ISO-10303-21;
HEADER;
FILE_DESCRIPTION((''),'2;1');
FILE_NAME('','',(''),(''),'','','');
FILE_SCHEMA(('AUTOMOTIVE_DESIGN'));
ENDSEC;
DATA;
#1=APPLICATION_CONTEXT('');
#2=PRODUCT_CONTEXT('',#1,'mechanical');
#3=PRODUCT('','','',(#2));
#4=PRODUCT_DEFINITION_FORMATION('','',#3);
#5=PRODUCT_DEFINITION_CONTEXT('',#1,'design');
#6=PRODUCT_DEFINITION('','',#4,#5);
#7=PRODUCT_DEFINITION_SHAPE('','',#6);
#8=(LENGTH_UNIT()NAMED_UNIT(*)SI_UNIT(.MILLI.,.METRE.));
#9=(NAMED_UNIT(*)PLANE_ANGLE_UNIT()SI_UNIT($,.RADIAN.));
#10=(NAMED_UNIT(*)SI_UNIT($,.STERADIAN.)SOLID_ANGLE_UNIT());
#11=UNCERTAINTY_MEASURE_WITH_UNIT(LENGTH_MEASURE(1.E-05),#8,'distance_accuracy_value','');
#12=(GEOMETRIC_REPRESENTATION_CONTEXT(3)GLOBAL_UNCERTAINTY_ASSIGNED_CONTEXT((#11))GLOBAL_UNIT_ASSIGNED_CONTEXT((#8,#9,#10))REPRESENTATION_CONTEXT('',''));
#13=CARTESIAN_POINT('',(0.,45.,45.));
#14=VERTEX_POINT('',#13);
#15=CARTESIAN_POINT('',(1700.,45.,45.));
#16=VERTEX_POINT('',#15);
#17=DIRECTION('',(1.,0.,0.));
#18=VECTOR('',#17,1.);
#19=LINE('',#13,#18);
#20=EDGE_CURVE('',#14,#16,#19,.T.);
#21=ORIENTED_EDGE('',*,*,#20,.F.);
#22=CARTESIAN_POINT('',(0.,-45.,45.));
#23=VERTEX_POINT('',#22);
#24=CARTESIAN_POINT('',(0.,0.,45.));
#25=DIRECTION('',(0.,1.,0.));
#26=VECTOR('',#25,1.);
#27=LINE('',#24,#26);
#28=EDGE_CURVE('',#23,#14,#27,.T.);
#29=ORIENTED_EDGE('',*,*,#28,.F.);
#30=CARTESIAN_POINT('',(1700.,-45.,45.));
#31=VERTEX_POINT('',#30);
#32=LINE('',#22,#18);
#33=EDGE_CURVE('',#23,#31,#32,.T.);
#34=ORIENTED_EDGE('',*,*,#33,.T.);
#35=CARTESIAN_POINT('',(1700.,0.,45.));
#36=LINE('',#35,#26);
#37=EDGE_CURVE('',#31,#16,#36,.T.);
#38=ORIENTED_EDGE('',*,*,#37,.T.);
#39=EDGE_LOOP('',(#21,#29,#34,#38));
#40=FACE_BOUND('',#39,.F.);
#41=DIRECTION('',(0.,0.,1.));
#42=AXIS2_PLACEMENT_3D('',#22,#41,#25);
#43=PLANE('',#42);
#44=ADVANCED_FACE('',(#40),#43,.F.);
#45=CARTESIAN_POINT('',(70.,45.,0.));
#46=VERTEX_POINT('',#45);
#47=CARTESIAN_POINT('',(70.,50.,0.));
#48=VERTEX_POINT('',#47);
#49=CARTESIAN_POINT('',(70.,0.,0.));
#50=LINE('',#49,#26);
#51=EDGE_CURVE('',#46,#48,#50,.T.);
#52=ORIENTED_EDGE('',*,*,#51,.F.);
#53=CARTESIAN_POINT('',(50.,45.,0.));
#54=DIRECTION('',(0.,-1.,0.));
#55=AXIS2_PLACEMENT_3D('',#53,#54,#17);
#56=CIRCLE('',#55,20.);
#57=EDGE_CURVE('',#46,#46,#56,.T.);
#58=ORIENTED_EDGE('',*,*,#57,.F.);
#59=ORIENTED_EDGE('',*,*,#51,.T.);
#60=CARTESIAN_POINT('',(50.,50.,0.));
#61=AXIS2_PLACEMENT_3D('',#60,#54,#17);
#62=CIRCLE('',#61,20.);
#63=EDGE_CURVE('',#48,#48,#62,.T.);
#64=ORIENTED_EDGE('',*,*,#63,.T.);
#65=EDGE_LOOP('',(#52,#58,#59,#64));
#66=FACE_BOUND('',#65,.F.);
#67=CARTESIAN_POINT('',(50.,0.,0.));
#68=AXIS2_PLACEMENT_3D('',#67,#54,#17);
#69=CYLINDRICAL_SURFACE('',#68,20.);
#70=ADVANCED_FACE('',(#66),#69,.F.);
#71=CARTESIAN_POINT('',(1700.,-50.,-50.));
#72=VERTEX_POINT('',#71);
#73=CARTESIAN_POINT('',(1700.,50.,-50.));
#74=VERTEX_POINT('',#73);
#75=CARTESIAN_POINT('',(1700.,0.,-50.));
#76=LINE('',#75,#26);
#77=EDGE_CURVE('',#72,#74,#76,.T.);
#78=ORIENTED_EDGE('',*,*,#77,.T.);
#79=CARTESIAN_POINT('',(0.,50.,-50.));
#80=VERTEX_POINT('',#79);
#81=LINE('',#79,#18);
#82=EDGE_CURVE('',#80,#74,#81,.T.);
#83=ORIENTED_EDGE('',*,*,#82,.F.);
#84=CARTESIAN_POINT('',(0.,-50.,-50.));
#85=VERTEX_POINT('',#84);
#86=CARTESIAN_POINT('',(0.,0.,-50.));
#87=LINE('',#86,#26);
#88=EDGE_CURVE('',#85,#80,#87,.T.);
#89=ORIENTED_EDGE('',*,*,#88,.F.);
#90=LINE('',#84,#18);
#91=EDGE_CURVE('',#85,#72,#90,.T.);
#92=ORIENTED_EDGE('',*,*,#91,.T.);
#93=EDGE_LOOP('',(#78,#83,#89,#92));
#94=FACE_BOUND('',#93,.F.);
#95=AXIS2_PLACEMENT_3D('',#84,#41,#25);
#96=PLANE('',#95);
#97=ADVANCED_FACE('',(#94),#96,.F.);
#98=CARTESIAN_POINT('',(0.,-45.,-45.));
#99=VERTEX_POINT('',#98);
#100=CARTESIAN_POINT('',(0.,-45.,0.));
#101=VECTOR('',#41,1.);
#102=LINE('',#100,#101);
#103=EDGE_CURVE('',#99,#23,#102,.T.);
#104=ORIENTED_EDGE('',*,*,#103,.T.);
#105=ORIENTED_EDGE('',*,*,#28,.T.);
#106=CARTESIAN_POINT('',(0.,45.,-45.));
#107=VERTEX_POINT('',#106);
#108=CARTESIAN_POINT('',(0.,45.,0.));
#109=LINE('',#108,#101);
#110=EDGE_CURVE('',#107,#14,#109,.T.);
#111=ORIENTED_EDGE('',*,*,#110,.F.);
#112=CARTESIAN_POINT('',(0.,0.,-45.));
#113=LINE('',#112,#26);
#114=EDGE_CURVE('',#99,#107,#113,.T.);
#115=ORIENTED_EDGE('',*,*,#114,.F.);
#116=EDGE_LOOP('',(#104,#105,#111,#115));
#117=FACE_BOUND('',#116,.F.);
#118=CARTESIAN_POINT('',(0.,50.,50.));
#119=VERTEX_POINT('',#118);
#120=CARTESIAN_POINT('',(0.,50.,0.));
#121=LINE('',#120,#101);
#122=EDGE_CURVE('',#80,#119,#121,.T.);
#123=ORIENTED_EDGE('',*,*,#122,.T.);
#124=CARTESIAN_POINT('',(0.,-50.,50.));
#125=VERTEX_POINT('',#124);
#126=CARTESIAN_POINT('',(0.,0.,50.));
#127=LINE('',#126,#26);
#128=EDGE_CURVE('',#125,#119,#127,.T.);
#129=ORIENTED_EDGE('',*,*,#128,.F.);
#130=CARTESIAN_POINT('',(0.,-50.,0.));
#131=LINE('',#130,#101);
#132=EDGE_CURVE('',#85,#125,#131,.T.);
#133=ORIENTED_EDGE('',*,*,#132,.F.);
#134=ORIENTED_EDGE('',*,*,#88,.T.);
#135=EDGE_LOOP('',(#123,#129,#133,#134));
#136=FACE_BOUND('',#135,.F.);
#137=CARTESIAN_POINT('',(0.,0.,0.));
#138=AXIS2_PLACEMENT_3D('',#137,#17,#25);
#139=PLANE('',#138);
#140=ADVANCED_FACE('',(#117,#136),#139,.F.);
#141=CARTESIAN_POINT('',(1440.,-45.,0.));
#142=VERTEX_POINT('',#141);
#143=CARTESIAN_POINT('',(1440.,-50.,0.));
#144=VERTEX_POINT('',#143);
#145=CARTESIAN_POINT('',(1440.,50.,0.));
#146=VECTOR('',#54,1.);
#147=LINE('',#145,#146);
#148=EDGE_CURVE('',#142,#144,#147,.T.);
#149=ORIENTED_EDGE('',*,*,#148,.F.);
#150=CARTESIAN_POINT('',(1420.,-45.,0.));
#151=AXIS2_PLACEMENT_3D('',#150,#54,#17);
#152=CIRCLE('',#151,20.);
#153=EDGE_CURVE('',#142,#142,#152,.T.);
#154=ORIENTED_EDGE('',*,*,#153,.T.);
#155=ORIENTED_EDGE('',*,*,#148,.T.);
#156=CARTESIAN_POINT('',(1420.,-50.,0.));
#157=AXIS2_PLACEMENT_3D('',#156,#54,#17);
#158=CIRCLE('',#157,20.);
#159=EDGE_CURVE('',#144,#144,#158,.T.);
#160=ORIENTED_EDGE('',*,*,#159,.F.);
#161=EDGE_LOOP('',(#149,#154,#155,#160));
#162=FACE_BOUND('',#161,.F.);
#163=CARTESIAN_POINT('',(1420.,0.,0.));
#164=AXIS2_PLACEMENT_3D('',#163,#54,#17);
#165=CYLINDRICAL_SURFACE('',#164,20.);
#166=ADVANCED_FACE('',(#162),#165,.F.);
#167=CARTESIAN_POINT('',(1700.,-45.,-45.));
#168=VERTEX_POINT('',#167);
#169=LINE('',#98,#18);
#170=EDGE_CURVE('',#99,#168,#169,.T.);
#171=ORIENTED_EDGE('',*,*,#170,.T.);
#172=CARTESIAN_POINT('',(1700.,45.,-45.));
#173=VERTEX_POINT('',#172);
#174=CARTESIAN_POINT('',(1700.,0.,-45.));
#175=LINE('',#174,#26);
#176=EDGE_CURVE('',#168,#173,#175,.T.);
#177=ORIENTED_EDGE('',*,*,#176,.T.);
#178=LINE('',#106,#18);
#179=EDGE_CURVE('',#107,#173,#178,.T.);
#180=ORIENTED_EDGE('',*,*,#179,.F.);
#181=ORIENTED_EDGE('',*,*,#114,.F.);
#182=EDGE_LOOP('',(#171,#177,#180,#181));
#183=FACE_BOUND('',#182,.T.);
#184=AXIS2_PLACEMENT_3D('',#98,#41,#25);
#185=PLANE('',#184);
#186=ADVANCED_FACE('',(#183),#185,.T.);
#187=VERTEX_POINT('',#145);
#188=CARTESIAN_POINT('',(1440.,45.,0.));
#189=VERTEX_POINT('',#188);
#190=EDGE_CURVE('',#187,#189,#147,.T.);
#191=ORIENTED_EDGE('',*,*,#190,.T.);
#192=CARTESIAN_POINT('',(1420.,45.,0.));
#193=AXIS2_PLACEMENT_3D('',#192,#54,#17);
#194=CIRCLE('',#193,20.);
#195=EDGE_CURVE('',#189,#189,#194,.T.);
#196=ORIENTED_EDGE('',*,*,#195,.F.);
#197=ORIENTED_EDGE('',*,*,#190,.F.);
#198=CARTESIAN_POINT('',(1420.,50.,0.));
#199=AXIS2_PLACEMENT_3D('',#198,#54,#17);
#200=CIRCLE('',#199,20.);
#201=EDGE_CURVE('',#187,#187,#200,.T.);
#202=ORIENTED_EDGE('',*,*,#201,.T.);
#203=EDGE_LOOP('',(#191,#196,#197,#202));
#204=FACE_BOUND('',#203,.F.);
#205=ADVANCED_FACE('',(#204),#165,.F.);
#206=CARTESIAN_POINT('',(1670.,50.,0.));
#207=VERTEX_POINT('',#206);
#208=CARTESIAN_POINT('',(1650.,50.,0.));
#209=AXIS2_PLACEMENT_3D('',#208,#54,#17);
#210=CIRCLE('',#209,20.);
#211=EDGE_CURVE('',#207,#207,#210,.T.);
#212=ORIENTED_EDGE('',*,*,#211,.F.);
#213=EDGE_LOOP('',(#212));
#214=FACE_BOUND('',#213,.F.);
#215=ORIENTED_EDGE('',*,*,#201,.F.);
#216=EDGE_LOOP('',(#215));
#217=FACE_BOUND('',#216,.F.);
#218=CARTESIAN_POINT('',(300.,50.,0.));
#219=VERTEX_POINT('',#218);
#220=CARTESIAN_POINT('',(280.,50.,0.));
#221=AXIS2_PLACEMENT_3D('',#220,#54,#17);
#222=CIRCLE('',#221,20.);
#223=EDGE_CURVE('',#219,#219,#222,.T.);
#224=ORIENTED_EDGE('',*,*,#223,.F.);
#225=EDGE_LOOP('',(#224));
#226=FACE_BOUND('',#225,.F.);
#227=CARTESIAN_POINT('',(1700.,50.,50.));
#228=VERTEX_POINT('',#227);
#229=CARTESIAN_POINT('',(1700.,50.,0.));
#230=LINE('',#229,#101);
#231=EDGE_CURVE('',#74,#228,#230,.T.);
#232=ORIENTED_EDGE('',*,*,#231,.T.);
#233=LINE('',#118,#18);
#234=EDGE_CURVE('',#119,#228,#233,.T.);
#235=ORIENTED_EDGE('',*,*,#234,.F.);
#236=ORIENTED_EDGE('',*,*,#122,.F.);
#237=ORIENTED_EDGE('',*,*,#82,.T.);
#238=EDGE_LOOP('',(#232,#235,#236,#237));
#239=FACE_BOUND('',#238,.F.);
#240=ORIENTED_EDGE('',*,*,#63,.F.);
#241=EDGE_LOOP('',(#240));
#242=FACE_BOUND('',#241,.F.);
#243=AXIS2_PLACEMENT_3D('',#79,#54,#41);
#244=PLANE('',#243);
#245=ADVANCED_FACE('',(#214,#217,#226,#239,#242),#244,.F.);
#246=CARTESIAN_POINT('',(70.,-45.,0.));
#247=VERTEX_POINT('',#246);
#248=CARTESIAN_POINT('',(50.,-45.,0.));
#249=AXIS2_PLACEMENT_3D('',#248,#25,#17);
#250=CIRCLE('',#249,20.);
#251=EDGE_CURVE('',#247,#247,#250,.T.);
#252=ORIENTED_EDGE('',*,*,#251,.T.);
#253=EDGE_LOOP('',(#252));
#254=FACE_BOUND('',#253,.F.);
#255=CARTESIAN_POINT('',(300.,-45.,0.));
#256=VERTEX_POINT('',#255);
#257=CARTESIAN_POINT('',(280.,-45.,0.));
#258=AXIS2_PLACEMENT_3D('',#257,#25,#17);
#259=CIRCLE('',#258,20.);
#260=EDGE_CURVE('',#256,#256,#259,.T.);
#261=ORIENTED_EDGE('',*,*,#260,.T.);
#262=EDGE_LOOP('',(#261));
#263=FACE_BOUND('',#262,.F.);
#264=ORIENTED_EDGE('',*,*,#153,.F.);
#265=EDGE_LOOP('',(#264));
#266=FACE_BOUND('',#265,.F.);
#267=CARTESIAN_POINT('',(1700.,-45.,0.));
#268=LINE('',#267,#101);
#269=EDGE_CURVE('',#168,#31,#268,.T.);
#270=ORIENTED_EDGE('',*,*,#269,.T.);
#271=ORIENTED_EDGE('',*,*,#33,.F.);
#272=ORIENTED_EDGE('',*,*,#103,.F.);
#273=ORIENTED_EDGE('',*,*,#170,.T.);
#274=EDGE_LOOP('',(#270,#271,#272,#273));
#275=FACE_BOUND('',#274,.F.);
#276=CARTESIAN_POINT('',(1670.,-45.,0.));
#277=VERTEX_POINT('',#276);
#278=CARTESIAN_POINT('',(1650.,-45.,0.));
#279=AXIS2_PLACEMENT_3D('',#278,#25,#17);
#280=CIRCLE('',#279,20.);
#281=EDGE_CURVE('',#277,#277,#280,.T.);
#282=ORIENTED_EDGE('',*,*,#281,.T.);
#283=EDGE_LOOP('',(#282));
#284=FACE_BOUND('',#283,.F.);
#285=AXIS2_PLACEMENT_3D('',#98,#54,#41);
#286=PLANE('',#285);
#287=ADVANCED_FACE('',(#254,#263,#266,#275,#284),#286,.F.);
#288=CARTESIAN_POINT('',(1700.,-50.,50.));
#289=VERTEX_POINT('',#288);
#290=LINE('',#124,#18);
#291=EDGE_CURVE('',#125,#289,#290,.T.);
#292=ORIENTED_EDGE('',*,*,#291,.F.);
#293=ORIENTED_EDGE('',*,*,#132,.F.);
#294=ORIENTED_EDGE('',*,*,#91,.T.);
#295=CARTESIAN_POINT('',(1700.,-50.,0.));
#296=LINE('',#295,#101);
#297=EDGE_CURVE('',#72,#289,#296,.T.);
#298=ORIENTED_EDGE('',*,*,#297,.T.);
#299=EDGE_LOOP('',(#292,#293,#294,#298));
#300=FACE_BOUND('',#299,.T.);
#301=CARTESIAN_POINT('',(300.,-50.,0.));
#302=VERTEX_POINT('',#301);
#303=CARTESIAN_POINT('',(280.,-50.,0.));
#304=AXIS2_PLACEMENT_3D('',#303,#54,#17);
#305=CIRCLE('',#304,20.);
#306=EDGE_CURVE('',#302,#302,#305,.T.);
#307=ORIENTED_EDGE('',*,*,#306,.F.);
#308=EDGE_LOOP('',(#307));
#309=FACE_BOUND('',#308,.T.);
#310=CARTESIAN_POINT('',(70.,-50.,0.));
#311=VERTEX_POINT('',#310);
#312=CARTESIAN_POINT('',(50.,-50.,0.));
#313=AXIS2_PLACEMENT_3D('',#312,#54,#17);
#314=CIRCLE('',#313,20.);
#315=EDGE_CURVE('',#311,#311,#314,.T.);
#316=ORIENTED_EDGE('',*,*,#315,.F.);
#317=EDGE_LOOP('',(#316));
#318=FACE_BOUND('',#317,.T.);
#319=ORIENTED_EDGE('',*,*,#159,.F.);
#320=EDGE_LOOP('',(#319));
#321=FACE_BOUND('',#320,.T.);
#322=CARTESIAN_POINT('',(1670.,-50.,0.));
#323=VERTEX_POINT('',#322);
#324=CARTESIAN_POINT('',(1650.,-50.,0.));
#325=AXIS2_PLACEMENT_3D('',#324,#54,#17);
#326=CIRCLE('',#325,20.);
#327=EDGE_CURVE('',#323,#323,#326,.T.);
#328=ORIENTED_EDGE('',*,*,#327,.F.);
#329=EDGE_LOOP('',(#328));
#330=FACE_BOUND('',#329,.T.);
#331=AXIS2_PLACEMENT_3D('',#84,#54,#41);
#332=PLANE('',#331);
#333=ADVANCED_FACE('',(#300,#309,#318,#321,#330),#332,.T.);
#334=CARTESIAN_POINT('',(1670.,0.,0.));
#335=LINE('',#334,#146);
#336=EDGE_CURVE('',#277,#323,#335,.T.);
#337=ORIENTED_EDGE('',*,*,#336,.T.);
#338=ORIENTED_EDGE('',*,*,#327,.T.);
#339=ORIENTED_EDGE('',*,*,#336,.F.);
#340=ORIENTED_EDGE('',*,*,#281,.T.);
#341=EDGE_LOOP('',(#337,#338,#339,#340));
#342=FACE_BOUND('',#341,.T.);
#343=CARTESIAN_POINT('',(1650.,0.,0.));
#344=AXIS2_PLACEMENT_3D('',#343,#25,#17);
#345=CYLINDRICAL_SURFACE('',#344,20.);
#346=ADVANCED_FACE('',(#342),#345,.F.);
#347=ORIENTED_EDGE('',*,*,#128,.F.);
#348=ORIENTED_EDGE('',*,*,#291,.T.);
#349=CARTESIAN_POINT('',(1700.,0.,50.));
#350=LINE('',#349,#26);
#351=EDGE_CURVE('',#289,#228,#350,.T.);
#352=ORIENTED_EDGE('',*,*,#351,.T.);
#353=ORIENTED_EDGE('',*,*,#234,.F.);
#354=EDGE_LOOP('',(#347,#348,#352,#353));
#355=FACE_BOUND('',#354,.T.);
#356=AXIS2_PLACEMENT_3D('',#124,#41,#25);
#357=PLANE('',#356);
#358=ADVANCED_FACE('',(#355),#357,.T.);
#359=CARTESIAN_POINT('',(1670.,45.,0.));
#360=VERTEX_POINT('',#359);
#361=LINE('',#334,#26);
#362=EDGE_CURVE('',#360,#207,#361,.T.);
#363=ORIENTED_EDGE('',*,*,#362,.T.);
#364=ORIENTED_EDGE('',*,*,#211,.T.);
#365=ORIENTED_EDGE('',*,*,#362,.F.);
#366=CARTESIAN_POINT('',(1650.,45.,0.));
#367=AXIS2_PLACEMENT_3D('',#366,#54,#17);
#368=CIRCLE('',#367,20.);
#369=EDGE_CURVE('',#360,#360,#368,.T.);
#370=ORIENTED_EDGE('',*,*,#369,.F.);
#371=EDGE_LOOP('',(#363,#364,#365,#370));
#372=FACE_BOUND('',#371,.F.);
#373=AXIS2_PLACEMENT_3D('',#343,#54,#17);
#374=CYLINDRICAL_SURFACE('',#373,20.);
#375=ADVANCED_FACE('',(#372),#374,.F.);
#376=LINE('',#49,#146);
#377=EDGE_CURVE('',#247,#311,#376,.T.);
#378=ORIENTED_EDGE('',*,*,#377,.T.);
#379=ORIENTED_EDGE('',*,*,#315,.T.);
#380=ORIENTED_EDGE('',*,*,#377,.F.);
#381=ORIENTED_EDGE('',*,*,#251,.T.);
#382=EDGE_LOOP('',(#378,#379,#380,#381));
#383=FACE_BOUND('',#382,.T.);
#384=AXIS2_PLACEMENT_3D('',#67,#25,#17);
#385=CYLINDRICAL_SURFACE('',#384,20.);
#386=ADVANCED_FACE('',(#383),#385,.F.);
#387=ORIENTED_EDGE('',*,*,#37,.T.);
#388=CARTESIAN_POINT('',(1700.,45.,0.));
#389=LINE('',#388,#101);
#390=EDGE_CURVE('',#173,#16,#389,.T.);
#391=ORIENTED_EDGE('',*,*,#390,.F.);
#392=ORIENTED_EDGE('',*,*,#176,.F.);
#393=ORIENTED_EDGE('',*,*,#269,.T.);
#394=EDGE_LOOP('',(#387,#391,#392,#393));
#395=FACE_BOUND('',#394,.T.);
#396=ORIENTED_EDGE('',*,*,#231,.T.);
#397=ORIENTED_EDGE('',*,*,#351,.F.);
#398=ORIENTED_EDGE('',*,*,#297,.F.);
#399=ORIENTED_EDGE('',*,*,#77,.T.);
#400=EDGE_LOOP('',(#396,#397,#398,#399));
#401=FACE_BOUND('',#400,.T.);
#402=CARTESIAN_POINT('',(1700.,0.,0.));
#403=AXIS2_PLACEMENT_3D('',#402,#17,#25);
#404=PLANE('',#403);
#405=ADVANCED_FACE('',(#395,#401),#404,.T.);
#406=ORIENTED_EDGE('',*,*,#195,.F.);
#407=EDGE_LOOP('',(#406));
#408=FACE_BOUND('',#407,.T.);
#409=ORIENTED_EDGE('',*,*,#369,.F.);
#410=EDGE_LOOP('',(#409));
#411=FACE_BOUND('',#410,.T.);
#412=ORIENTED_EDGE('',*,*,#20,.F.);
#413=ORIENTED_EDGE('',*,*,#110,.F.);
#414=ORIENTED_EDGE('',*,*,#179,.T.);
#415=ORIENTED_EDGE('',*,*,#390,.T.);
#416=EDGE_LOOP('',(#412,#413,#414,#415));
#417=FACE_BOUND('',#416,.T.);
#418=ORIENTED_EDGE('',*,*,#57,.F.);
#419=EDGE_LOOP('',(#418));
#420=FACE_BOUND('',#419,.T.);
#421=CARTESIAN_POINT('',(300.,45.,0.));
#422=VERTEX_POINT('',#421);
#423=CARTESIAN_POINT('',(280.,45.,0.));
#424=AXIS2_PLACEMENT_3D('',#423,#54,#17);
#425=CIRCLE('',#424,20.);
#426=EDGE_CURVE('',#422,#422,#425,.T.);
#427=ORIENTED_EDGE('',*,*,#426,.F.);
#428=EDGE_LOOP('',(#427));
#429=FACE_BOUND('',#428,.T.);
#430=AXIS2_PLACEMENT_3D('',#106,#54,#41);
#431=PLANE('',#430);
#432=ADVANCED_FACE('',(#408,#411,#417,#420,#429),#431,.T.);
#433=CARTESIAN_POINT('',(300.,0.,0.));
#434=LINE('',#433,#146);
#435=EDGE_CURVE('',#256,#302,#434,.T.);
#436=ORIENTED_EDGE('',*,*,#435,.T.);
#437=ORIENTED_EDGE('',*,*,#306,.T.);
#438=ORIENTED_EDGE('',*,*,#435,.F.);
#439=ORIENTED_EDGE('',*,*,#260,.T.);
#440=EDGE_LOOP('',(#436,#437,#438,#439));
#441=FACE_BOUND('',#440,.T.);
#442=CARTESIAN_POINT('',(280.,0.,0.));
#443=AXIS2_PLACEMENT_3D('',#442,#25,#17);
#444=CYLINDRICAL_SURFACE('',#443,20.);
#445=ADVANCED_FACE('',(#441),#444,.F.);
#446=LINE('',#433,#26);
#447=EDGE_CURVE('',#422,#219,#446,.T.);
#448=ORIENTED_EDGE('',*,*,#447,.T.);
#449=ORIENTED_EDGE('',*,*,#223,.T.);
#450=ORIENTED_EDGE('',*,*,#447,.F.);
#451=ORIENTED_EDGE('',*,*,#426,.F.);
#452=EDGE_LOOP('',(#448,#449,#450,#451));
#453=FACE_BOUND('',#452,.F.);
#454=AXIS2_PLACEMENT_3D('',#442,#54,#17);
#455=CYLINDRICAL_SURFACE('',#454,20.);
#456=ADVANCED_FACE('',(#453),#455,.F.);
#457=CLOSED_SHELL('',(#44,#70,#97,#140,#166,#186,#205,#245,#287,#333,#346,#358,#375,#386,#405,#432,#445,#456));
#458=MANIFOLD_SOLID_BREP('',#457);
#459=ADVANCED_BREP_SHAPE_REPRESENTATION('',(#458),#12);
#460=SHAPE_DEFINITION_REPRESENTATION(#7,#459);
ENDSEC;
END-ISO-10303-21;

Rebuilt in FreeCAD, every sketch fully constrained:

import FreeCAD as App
import Part
import Sketcher

V = App.Vector
Q = App.Units.Quantity

doc = App.newDocument("Part")
body = doc.addObject("PartDesign::Body", "Body")

sketch1 = body.newObject("Sketcher::SketchObject", "Sketch")
sketch1.AttachmentSupport = (doc.getObject("YZ_Plane"), [""])
sketch1.MapMode = "FlatFace"
sketch1.addGeometry([
    Part.LineSegment(V(-50, 50, 0), V(-50, -50, 0)),
    Part.LineSegment(V(-50, -50, 0), V(50, -50, 0)),
    Part.LineSegment(V(50, -50, 0), V(50, 50, 0)),
    Part.LineSegment(V(50, 50, 0), V(-50, 50, 0)),
    Part.LineSegment(V(45, -45, 0), V(-45, -45, 0)),
    Part.LineSegment(V(-45, -45, 0), V(-45, 45, 0)),
    Part.LineSegment(V(-45, 45, 0), V(45, 45, 0)),
    Part.LineSegment(V(45, 45, 0), V(45, -45, 0)),
], False)
sketch1.addConstraint([
    Sketcher.Constraint("Coincident", 0, 2, 1, 1),
    Sketcher.Constraint("Coincident", 1, 2, 2, 1),
    Sketcher.Constraint("Coincident", 2, 2, 3, 1),
    Sketcher.Constraint("Coincident", 3, 2, 0, 1),
    Sketcher.Constraint("Coincident", 4, 2, 5, 1),
    Sketcher.Constraint("Coincident", 5, 2, 6, 1),
    Sketcher.Constraint("Coincident", 6, 2, 7, 1),
    Sketcher.Constraint("Coincident", 7, 2, 4, 1),
    Sketcher.Constraint("Vertical", 0),
    Sketcher.Constraint("Horizontal", 1),
    Sketcher.Constraint("Vertical", 2),
    Sketcher.Constraint("Horizontal", 3),
    Sketcher.Constraint("Horizontal", 4),
    Sketcher.Constraint("Vertical", 5),
    Sketcher.Constraint("Horizontal", 6),
    Sketcher.Constraint("Vertical", 7),
    Sketcher.Constraint("Symmetric", 0, 2, 2, 2, -1, 1),
    Sketcher.Constraint("Symmetric", 4, 2, 6, 2, -1, 1),
    Sketcher.Constraint("Equal", 3, 0),
    Sketcher.Constraint("Equal", 6, 5),
    Sketcher.Constraint("DistanceX", 1, 1, 1, 2, Q("100 mm")),
    Sketcher.Constraint("DistanceX", 4, 2, 4, 1, Q("90 mm")),
])
pad1 = body.newObject("PartDesign::Pad", "Pad")
pad1.Profile = sketch1
pad1.Length = 1700

sketch2 = body.newObject("Sketcher::SketchObject", "Sketch001")
sketch2.AttachmentSupport = (doc.getObject("XZ_Plane"), [""])
sketch2.MapMode = "FlatFace"
sketch2.addGeometry([
    Part.Circle(V(50, 0, 0), V(0, 0, 1), 20),
    Part.Circle(V(1650, 0, 0), V(0, 0, 1), 20),
    Part.Circle(V(280, 0, 0), V(0, 0, 1), 20),
    Part.Circle(V(1420, 0, 0), V(0, 0, 1), 20),
], False)
sketch2.addConstraint([
    Sketcher.Constraint("Equal", 0, 1),
    Sketcher.Constraint("Equal", 1, 2),
    Sketcher.Constraint("Equal", 2, 3),
    Sketcher.Constraint("PointOnObject", 0, 3, -1),
    Sketcher.Constraint("PointOnObject", 1, 3, -1),
    Sketcher.Constraint("PointOnObject", 2, 3, -1),
    Sketcher.Constraint("PointOnObject", 3, 3, -1),
    Sketcher.Constraint("Diameter", 0, Q("40 mm")),
    Sketcher.Constraint("DistanceX", -1, 1, 0, 3, Q("50 mm")),
    Sketcher.Constraint("DistanceX", -1, 1, 1, 3, Q("1650 mm")),
    Sketcher.Constraint("DistanceX", -1, 1, 2, 3, Q("280 mm")),
    Sketcher.Constraint("DistanceX", -1, 1, 3, 3, Q("1420 mm")),
])
pocket1 = body.newObject("PartDesign::Pocket", "Pocket")
pocket1.Profile = sketch2
pocket1.Length = 100
pocket1.Midplane = True

doc.recompute()
